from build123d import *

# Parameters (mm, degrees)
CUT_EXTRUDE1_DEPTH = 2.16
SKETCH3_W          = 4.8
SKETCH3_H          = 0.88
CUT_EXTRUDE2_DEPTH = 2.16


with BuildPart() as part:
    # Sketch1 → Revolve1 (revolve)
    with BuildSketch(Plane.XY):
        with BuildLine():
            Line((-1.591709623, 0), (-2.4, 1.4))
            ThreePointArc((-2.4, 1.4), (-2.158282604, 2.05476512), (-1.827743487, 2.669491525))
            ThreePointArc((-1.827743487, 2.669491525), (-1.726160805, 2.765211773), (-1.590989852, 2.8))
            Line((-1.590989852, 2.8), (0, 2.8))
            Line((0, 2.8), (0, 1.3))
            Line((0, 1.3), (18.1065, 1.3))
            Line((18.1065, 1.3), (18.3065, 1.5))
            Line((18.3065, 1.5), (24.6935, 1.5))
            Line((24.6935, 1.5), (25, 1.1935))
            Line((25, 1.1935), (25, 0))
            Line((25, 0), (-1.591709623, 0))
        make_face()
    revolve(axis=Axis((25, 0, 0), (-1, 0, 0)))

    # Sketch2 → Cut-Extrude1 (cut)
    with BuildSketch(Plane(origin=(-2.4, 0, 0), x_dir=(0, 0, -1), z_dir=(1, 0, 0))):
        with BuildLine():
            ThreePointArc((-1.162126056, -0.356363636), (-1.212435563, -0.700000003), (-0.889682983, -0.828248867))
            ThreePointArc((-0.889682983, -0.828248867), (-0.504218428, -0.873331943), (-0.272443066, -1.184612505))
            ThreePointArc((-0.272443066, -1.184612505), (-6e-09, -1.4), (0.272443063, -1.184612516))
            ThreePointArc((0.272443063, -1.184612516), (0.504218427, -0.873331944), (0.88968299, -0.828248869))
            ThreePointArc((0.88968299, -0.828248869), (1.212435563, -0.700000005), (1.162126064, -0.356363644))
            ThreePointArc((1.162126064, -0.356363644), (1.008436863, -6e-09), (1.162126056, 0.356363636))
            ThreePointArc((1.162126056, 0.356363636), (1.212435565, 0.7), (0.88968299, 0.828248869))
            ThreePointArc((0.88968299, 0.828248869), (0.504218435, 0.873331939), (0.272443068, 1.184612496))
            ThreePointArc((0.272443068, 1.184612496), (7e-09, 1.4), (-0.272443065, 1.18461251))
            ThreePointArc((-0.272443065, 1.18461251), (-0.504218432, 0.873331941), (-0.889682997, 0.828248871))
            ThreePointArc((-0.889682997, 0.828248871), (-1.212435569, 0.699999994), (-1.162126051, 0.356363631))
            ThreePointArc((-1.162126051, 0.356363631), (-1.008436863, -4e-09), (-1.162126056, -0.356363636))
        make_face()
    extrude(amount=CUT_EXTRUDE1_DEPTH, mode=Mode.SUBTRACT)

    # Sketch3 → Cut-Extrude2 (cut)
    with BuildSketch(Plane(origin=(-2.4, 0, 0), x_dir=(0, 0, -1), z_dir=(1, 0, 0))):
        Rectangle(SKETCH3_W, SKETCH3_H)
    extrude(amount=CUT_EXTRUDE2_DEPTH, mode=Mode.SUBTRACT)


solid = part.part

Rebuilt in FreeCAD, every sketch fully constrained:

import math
import FreeCAD as App
import Part
import Sketcher

V = App.Vector
Q = App.Units.Quantity


def add_polygon(sketch, points):
    """Adds a closed chain of lines whose ends are joined by coincident constraints."""
    first, n = sketch.GeometryCount, len(points)
    for a, b in zip(points, points[1:] + points[:1]):
        sketch.addGeometry(Part.LineSegment(App.Vector(*a, 0), App.Vector(*b, 0)), False)
    for i in range(n):
        sketch.addConstraint(Sketcher.Constraint("Coincident", first + i, 2, first + (i + 1) % n, 1))

doc = App.newDocument("Part")
body = doc.addObject("PartDesign::Body", "Body")

sketch1 = doc.addObject("Sketcher::SketchObject", "Sketch")
body.addObject(sketch1)
sketch1.AttachmentSupport = (doc.XY_Plane, [""])
sketch1.MapMode = "FlatFace"
sketch1.addGeometry([
    Part.LineSegment(V(-2.4, 1.4, 0), V(-1.59, 0, 0)),
    Part.LineSegment(V(-1.59, 0, 0), V(25, 0, 0)),
    Part.LineSegment(V(25, 0, 0), V(25, 1.19, 0)),
    Part.LineSegment(V(25, 1.19, 0), V(24.69, 1.5, 0)),
    Part.LineSegment(V(24.69, 1.5, 0), V(18.31, 1.5, 0)),
    Part.LineSegment(V(18.31, 1.5, 0), V(18.11, 1.3, 0)),
    Part.LineSegment(V(18.11, 1.3, 0), V(0, 1.3, 0)),
    Part.LineSegment(V(0, 1.3, 0), V(0, 2.8, 0)),
    Part.LineSegment(V(0, 2.8, 0), V(-1.59, 2.8, 0)),
    Part.ArcOfCircle(Part.Circle(V(-1.59, 2.52, 0), V(0, 0, 1), 0.28), math.radians(90), math.radians(148)),
    Part.ArcOfCircle(Part.Circle(V(2.4, 0, 0), V(0, 0, 1), 5), math.radians(147.73), math.radians(163.74)),
], False)
sketch1.addConstraint([
    Sketcher.Constraint("Coincident", 0, 2, 1, 1),
    Sketcher.Constraint("Coincident", 1, 2, 2, 1),
    Sketcher.Constraint("Coincident", 2, 2, 3, 1),
    Sketcher.Constraint("Coincident", 3, 2, 4, 1),
    Sketcher.Constraint("Coincident", 4, 2, 5, 1),
    Sketcher.Constraint("Coincident", 5, 2, 6, 1),
    Sketcher.Constraint("Coincident", 6, 2, 7, 1),
    Sketcher.Constraint("Coincident", 7, 2, 8, 1),
    Sketcher.Constraint("Tangent", 8, 2, 9, 1),
    Sketcher.Constraint("Tangent", 9, 2, 10, 1),
    Sketcher.Constraint("Coincident", 10, 2, 0, 1),
    Sketcher.Constraint("Horizontal", 1),
    Sketcher.Constraint("Vertical", 2),
    Sketcher.Constraint("Horizontal", 4),
    Sketcher.Constraint("Horizontal", 6),
    Sketcher.Constraint("Vertical", 7),
    Sketcher.Constraint("Horizontal", 8),
    Sketcher.Constraint("PointOnObject", 10, 3, -1),
    Sketcher.Constraint("PointOnObject", 0, 2, -1),
    Sketcher.Constraint("PointOnObject", 6, 2, -2),
    Sketcher.Constraint("Perpendicular", 3, 5),
    Sketcher.Constraint("Radius", 10, 5.0),
    Sketcher.Constraint("Angle", 0, Q("-60 deg")),
    Sketcher.Constraint("Angle", 3, Q("135 deg")),
    Sketcher.Constraint("Radius", 9, 0.28),
    Sketcher.Constraint("DistanceY", 7, 1, 7, 2, 1.5),
    Sketcher.Constraint("DistanceX", -1, 1, 1, 2, 25.0),
    Sketcher.Constraint("DistanceX", -1, 1, 10, 3, 2.4),
    Sketcher.Constraint("DistanceY", -1, 1, 3, 2, 1.5),
    Sketcher.Constraint("DistanceY", -1, 1, 5, 2, 1.3),
    Sketcher.Constraint("DistanceX", 10, 2, -1, 1, 2.4),
    Sketcher.Constraint("DistanceX", 4, 2, 4, 1, 6.387),
    Sketcher.Constraint("DistanceX", 6, 2, 6, 1, 18.1065),
])
revolution = doc.addObject("PartDesign::Revolution", "Revolution")
body.addObject(revolution)
revolution.Profile = sketch1
revolution.ReferenceAxis = (sketch1, ["H_Axis"])
revolution.Angle = 360

sketch2 = doc.addObject("Sketcher::SketchObject", "Sketch001")
body.addObject(sketch2)
sketch2.AttachmentSupport = (doc.YZ_Plane, [""])
sketch2.MapMode = "FlatFace"
sketch2.AttachmentOffset = App.Placement(V(0, 0, -2.4), App.Rotation())
sketch2.addGeometry([
    Part.ArcOfCircle(Part.Circle(V(-0.56, 0.97, 0), V(0, 0, 1), 0.28), math.radians(43), math.radians(197)),
    Part.ArcOfCircle(Part.Circle(V(-1.3, 0.75, 0), V(0, 0, 1), 0.49), math.radians(-77), math.radians(17)),
    Part.ArcOfCircle(Part.Circle(V(-1.12, 0, 0), V(0, 0, 1), 0.28), math.radians(103), math.radians(257)),
    Part.ArcOfCircle(Part.Circle(V(-1.3, -0.75, 0), V(0, 0, 1), 0.49), math.radians(-17), math.radians(77)),
    Part.ArcOfCircle(Part.Circle(V(-0.56, -0.97, 0), V(0, 0, 1), 0.28), math.radians(163), math.radians(317)),
    Part.ArcOfCircle(Part.Circle(V(0, -1.5, 0), V(0, 0, 1), 0.49), math.radians(43), math.radians(137)),
    Part.ArcOfCircle(Part.Circle(V(0.56, -0.97, 0), V(0, 0, 1), 0.28), math.radians(-137), math.radians(17)),
    Part.ArcOfCircle(Part.Circle(V(1.3, -0.75, 0), V(0, 0, 1), 0.49), math.radians(103), math.radians(197)),
    Part.ArcOfCircle(Part.Circle(V(1.12, 0, 0), V(0, 0, 1), 0.28), math.radians(-77), math.radians(77)),
    Part.ArcOfCircle(Part.Circle(V(1.3, 0.75, 0), V(0, 0, 1), 0.49), math.radians(163), math.radians(257)),
    Part.ArcOfCircle(Part.Circle(V(0.56, 0.97, 0), V(0, 0, 1), 0.28), math.radians(-17), math.radians(137)),
    Part.ArcOfCircle(Part.Circle(V(0, 1.5, 0), V(0, 0, 1), 0.49), math.radians(-137), math.radians(-43)),
], False)
sketch2.addConstraint([
    Sketcher.Constraint("Tangent", 0, 2, 1, 2),
    Sketcher.Constraint("Tangent", 1, 1, 2, 1),
    Sketcher.Constraint("Tangent", 2, 2, 3, 2),
    Sketcher.Constraint("Tangent", 3, 1, 4, 1),
    Sketcher.Constraint("Tangent", 4, 2, 5, 2),
    Sketcher.Constraint("Tangent", 5, 1, 6, 1),
    Sketcher.Constraint("Tangent", 6, 2, 7, 2),
    Sketcher.Constraint("Tangent", 7, 1, 8, 1),
    Sketcher.Constraint("Tangent", 8, 2, 9, 2),
    Sketcher.Constraint("Tangent", 9, 1, 10, 1),
    Sketcher.Constraint("Tangent", 10, 2, 11, 2),
    Sketcher.Constraint("Tangent", 11, 1, 0, 1),
    Sketcher.Constraint("Equal", 0, 2),
    Sketcher.Constraint("Equal", 1, 3),
    Sketcher.Constraint("Equal", 2, 4),
    Sketcher.Constraint("Equal", 3, 5),
    Sketcher.Constraint("Equal", 4, 6),
    Sketcher.Constraint("Equal", 5, 7),
    Sketcher.Constraint("Equal", 6, 8),
    Sketcher.Constraint("Equal", 7, 9),
    Sketcher.Constraint("Equal", 8, 10),
    Sketcher.Constraint("Equal", 9, 11),
    Sketcher.Constraint("Symmetric", 0, 3, 6, 3, -1, 1),
    Sketcher.Constraint("Symmetric", 2, 3, 8, 3, -1, 1),
    Sketcher.Constraint("Symmetric", 4, 3, 10, 3, -1, 1),
    Sketcher.Constraint("Symmetric", 4, 3, 6, 3, -2),
    Sketcher.Constraint("PointOnObject", 2, 3, -1),
    Sketcher.Constraint("Radius", 0, 0.28),
    Sketcher.Constraint("Radius", 1, 0.49),
    Sketcher.Constraint("DistanceX", 0, 3, -1, 1, 0.56),
    Sketcher.Constraint("DistanceX", 2, 3, -1, 1, 1.12),
    Sketcher.Constraint("DistanceY", -1, 1, 0, 3, 0.969948),
])
pocket1 = doc.addObject("PartDesign::Pocket", "Pocket")
body.addObject(pocket1)
pocket1.Profile = sketch2
pocket1.Length = 2.16
pocket1.Reversed = True

sketch3 = doc.addObject("Sketcher::SketchObject", "Sketch002")
body.addObject(sketch3)
sketch3.AttachmentSupport = (doc.YZ_Plane, [""])
sketch3.MapMode = "FlatFace"
sketch3.AttachmentOffset = App.Placement(V(0, 0, -2.4), App.Rotation())
add_polygon(sketch3, [(0.4, 2.4), (-0.4, 2.4), (-0.4, -2.4), (0.4, -2.4)])
sketch3.addConstraint([
    Sketcher.Constraint("Horizontal", 0),
    Sketcher.Constraint("Vertical", 1),
    Sketcher.Constraint("Horizontal", 2),
    Sketcher.Constraint("Vertical", 3),
    Sketcher.Constraint("Symmetric", 0, 2, 2, 2, -1, 1),
    Sketcher.Constraint("DistanceY", 1, 2, 1, 1, 4.8),
    Sketcher.Constraint("DistanceX", 0, 2, 0, 1, 0.88),
])
pocket2 = doc.addObject("PartDesign::Pocket", "Pocket001")
body.addObject(pocket2)
pocket2.Profile = sketch3
pocket2.Length = 2.16
pocket2.Reversed = True

doc.recompute()
